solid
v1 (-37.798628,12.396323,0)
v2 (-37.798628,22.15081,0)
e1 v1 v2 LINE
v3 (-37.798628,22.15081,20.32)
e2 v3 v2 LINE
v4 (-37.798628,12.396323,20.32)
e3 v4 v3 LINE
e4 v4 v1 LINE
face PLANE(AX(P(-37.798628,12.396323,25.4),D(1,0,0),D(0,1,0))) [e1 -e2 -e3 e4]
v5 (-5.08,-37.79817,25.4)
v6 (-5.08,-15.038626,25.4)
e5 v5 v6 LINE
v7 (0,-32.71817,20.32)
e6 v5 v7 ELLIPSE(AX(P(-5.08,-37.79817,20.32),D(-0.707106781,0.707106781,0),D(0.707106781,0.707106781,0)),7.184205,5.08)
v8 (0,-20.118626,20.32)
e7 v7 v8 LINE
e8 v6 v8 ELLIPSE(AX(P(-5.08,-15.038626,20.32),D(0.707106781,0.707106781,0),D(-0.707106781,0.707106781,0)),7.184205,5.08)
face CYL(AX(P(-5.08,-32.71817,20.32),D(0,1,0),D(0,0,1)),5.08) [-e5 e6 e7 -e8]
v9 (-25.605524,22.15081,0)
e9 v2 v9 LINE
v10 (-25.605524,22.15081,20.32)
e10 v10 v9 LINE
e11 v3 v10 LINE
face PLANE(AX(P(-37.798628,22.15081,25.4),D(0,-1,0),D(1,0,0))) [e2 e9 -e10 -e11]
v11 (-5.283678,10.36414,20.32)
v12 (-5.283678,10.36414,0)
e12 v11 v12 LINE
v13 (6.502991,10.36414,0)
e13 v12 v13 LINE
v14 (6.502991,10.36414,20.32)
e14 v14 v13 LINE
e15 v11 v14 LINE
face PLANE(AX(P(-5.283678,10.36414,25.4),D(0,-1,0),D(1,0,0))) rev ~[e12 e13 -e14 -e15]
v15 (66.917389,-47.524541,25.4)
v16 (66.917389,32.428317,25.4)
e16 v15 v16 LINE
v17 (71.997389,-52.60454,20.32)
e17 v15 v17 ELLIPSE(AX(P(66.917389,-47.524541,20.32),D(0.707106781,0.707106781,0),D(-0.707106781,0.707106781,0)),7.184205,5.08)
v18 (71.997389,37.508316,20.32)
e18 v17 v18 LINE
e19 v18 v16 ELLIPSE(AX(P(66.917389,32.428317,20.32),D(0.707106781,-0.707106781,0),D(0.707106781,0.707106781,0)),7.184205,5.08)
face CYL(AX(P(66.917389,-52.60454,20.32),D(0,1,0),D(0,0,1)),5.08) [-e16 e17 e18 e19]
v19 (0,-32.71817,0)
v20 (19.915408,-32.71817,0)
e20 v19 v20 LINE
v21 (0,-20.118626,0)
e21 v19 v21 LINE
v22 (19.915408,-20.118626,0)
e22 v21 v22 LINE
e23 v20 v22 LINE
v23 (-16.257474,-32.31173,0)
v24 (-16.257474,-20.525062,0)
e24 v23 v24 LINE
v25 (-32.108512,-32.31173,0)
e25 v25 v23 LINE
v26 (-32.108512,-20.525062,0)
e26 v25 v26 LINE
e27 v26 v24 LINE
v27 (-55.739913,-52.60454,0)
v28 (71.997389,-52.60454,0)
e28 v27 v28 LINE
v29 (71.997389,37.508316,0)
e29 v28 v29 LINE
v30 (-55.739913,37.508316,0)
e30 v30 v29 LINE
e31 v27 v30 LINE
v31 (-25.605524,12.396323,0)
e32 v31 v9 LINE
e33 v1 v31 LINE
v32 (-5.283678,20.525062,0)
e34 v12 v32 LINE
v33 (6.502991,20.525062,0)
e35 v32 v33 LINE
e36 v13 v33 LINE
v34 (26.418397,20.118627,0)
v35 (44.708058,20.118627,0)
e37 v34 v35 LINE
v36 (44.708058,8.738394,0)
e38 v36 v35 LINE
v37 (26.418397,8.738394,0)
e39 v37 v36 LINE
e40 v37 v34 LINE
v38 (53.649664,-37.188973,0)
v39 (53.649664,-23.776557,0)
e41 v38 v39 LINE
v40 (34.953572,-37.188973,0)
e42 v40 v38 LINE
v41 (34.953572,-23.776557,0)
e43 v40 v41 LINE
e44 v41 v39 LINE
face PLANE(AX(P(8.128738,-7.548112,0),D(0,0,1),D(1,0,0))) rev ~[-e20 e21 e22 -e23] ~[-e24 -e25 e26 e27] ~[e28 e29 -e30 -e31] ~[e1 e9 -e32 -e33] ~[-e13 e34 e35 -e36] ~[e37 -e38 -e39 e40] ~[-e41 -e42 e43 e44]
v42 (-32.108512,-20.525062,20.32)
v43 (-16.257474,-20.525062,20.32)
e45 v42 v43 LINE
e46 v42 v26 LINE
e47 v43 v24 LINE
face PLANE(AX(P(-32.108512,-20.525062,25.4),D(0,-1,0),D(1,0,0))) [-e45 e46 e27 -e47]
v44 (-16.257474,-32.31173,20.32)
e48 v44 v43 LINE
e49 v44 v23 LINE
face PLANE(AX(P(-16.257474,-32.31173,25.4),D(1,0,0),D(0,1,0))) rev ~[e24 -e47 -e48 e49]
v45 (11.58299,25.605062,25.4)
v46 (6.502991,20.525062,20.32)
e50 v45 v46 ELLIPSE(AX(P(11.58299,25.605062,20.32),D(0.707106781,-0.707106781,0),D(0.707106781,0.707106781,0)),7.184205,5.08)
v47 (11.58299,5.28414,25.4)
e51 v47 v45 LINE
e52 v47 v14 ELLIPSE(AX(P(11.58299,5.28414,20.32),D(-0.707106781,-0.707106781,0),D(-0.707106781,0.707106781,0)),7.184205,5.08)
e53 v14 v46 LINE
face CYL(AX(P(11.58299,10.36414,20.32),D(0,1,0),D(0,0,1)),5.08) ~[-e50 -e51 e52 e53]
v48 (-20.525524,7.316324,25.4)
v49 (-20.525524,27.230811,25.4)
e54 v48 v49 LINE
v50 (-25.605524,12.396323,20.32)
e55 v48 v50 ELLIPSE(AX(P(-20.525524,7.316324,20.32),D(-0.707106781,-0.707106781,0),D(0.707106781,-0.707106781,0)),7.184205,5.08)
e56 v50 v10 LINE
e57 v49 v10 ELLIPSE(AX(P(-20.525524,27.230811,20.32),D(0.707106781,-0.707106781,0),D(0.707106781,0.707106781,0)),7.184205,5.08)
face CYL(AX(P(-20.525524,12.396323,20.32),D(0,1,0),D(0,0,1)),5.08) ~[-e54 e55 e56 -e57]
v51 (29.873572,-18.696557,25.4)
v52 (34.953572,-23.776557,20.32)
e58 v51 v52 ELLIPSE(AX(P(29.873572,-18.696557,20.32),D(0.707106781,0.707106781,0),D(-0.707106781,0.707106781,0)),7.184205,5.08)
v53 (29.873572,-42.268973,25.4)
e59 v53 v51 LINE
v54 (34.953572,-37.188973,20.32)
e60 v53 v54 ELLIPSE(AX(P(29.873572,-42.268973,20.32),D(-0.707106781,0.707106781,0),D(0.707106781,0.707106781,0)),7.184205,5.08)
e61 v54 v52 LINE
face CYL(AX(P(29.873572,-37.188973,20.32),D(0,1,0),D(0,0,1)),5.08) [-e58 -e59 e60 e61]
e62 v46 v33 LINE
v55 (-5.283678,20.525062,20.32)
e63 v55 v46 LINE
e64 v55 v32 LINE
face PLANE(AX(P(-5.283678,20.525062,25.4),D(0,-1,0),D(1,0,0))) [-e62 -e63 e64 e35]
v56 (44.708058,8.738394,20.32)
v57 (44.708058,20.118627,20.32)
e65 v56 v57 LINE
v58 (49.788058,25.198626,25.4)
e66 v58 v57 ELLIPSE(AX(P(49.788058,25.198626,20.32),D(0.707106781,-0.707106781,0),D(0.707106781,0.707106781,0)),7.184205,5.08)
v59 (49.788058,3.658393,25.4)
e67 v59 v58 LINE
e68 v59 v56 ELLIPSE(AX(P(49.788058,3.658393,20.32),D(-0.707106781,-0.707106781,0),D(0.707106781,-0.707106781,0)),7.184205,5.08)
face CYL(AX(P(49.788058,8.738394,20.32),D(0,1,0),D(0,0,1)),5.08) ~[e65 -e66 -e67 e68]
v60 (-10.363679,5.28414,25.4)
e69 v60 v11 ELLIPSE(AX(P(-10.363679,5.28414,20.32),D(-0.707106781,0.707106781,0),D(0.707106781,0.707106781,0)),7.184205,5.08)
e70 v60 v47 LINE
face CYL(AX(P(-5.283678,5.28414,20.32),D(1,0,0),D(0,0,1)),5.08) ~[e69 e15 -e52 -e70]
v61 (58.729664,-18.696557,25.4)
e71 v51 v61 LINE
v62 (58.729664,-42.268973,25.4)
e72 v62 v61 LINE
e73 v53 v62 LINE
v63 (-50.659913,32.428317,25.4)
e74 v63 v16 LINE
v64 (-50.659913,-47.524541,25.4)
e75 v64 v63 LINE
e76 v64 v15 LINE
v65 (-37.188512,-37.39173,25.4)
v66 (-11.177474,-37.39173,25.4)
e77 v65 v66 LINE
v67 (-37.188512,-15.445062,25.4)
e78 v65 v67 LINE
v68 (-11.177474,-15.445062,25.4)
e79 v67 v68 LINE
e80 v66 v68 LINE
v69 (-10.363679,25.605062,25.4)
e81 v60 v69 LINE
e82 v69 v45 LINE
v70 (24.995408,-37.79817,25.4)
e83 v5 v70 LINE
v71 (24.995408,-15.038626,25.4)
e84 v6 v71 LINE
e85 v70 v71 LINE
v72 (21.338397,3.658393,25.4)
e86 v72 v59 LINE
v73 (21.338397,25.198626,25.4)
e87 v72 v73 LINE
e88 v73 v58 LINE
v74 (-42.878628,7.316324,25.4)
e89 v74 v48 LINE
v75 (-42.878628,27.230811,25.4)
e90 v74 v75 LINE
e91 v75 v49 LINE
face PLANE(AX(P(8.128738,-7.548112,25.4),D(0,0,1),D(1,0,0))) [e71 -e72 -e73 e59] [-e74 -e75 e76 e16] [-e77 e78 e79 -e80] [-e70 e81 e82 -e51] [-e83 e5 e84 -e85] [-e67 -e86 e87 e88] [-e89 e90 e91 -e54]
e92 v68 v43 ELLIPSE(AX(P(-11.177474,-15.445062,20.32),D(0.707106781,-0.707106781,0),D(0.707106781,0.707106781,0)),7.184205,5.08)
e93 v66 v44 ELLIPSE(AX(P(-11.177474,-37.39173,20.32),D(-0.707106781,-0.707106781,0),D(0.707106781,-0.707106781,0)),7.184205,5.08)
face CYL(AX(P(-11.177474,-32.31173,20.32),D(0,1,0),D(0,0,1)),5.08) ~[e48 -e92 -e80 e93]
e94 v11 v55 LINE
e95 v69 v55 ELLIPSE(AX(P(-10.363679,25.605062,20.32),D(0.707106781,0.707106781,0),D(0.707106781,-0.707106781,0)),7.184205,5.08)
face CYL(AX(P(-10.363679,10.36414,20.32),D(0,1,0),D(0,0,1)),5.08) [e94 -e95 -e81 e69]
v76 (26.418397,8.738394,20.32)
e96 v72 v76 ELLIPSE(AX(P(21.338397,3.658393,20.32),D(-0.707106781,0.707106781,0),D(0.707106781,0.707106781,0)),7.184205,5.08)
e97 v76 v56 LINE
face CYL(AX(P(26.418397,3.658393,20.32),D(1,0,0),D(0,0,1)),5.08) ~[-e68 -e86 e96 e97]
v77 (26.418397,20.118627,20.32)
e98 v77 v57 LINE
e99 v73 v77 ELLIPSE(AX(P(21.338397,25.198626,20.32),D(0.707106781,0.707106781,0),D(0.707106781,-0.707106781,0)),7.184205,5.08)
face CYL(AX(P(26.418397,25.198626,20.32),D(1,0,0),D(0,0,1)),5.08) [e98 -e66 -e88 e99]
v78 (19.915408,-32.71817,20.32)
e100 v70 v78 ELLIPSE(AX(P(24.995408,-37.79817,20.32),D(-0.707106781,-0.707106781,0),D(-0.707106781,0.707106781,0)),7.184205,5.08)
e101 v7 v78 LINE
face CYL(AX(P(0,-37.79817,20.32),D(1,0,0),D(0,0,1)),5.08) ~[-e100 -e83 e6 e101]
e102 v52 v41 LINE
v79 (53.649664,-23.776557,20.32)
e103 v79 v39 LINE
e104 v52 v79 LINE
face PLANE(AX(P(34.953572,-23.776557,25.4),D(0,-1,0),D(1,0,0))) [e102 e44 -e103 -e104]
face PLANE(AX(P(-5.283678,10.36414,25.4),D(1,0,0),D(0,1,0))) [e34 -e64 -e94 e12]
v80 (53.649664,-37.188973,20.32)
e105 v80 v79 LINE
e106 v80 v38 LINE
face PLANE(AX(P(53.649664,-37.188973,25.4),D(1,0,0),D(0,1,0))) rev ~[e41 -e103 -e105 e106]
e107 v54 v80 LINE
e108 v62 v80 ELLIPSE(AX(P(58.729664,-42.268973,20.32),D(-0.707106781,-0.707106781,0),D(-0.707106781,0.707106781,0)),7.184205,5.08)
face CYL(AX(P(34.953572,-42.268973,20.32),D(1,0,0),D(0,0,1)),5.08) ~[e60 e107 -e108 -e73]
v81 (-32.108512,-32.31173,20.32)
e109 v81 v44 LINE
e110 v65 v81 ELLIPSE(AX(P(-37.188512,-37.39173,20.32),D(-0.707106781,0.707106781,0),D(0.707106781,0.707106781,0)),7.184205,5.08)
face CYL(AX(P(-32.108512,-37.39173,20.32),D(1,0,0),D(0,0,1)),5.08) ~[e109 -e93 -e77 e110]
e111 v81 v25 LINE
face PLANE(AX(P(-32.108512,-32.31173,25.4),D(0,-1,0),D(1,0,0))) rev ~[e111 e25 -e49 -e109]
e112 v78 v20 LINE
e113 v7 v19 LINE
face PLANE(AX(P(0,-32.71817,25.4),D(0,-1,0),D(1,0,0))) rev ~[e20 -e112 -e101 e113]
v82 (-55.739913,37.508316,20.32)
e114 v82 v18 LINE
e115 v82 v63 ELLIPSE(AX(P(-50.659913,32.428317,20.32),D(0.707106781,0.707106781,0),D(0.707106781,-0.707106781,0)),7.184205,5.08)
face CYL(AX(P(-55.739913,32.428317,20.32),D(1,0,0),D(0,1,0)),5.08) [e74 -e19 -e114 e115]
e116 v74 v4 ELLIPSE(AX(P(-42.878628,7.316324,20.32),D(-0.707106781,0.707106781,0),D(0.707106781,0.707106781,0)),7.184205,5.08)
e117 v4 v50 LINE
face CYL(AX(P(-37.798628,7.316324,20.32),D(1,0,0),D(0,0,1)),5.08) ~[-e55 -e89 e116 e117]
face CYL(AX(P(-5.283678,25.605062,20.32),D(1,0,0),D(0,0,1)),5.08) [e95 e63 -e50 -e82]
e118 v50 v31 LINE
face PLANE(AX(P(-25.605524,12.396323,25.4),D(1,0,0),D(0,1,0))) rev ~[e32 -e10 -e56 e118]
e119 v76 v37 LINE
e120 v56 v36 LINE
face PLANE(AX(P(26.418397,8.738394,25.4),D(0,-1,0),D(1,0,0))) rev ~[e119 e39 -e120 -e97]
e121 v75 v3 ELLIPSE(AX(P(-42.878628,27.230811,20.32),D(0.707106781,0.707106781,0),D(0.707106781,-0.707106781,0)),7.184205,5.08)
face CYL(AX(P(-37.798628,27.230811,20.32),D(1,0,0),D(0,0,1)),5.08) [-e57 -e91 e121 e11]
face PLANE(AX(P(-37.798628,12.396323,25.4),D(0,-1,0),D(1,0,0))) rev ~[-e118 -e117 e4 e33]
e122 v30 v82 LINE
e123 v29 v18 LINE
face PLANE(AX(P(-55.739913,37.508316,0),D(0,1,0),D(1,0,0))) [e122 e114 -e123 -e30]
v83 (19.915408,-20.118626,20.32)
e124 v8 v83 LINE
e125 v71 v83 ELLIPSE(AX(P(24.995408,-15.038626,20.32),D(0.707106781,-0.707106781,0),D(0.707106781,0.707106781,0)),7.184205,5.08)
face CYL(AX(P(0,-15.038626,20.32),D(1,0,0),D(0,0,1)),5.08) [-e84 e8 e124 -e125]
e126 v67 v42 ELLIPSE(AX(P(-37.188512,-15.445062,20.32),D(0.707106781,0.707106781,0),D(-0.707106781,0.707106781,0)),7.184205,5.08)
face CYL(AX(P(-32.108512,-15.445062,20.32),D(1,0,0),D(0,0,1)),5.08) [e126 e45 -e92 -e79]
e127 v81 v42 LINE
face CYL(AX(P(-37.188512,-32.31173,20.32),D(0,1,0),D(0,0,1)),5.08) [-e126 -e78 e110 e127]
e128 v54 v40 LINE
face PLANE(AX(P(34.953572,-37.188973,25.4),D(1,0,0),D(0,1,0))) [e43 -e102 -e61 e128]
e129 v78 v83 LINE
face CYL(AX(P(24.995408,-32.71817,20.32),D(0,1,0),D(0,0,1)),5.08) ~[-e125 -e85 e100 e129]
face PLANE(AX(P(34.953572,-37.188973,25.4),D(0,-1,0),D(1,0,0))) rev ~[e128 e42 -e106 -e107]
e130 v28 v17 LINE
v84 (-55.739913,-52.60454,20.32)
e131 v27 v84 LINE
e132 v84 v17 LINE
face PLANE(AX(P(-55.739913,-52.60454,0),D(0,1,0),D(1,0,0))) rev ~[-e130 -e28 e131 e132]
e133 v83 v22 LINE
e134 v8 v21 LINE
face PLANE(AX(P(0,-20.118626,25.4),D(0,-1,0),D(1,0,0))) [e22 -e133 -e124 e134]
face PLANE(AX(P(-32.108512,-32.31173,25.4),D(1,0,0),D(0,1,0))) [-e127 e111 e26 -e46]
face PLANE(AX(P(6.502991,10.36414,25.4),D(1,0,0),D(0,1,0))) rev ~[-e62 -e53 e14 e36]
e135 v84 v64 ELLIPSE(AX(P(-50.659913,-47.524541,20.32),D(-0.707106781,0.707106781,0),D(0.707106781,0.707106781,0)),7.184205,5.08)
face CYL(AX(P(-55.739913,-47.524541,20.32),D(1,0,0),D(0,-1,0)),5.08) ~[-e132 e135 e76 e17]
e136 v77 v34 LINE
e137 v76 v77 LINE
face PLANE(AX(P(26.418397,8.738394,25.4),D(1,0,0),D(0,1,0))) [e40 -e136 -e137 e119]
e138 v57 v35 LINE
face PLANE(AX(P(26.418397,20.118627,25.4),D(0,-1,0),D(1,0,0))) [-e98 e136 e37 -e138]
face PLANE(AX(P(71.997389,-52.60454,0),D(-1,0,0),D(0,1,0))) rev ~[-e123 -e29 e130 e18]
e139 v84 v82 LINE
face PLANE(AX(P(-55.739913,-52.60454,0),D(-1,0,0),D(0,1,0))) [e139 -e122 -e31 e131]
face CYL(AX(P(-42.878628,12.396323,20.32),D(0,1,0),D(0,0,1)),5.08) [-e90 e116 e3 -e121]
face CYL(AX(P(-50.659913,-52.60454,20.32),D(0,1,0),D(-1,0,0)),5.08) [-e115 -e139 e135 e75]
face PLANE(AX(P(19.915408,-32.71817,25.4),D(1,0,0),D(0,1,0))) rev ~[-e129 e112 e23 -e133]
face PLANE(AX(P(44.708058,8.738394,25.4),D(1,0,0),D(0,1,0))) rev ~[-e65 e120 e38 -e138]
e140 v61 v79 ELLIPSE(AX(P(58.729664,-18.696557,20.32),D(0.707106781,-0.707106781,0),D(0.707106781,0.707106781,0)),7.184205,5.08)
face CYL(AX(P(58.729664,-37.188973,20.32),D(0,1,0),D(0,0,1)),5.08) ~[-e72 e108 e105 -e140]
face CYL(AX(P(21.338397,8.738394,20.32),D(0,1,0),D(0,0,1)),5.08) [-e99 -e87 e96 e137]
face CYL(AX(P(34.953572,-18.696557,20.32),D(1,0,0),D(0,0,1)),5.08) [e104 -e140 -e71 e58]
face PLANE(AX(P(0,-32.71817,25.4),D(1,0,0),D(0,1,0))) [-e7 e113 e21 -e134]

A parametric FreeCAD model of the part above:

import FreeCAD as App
import Part
import Sketcher

V = App.Vector
Q = App.Units.Quantity


def edges_at(feature, points):
    """Names of the edges that pass closest to the given points."""
    edges = feature.Shape.Edges
    near = lambda p: min(range(len(edges)), key=lambda i: edges[i].distToShape(Part.Vertex(*p))[0])
    return sorted({f"Edge{near(p) + 1}" for p in points})


def add_polygon(sketch, points):
    """Adds a closed chain of lines whose ends are joined by coincident constraints."""
    first, n = sketch.GeometryCount, len(points)
    for a, b in zip(points, points[1:] + points[:1]):
        sketch.addGeometry(Part.LineSegment(App.Vector(*a, 0), App.Vector(*b, 0)), False)
    for i in range(n):
        sketch.addConstraint(Sketcher.Constraint("Coincident", first + i, 2, first + (i + 1) % n, 1))

doc = App.newDocument("Part")
body = doc.addObject("PartDesign::Body", "Body")

# Sketch on XY plane
sketch1 = body.newObject("Sketcher::SketchObject", "Sketch")
sketch1.AttachmentSupport = (doc.getObject("XY_Plane"), [""])
sketch1.MapMode = "FlatFace"
add_polygon(sketch1, [(-55.739913, 37.508316), (-55.739913, -52.60454), (71.997389, -52.60454), (71.997389, 37.508316)])  # lines 0-3
sketch1.addConstraint(Sketcher.Constraint("Vertical", 0))
sketch1.addConstraint(Sketcher.Constraint("Horizontal", 1))
sketch1.addConstraint(Sketcher.Constraint("Vertical", 2))
sketch1.addConstraint(Sketcher.Constraint("Horizontal", 3))
sketch1.addConstraint(Sketcher.Constraint("DistanceX", 1, 1, 1, 2, Q("127.737302 mm")))
sketch1.addConstraint(Sketcher.Constraint("DistanceY", 0, 2, 0, 1, Q("90.112857 mm")))
sketch1.addConstraint(Sketcher.Constraint("DistanceY", 0, 2, -1, 1, Q("52.60454 mm")))
sketch1.addConstraint(Sketcher.Constraint("DistanceX", -1, 1, 1, 2, Q("71.997389 mm")))
pad1 = body.newObject("PartDesign::Pad", "Pad")
pad1.Profile = sketch1
pad1.Length = Q("1 in")

# Sketch on XY plane
sketch2 = body.newObject("Sketcher::SketchObject", "Sketch001")
sketch2.AttachmentSupport = (doc.getObject("XY_Plane"), [""])
sketch2.MapMode = "FlatFace"
sketch2.AttachmentOffset = App.Placement(V(0, 0, 1 * 25.4), App.Rotation())
add_polygon(sketch2, [(-5.283678, 20.525062), (-5.283678, 10.36414), (6.502991, 10.36414), (6.502991, 20.525062)])  # lines 0-3
add_polygon(sketch2, [(26.418397, 20.118627), (26.418397, 8.738394), (44.708058, 8.738394), (44.708058, 20.118627)])  # lines 4-7
add_polygon(sketch2, [(-32.108512, -20.525062), (-32.108512, -32.31173), (-16.257474, -32.31173), (-16.257474, -20.525062)])  # lines 8-11
add_polygon(sketch2, [(0, -20.118626), (0, -32.71817), (19.915408, -32.71817), (19.915408, -20.118626)])  # lines 12-15
add_polygon(sketch2, [(34.953572, -23.776557), (34.953572, -37.188973), (53.649664, -37.188973), (53.649664, -23.776557)])  # lines 16-19
add_polygon(sketch2, [(-37.798628, 22.15081), (-37.798628, 12.396323), (-25.605524, 12.396323), (-25.605524, 22.15081)])  # lines 20-23
sketch2.addConstraint(Sketcher.Constraint("Vertical", 0))
sketch2.addConstraint(Sketcher.Constraint("Horizontal", 1))
sketch2.addConstraint(Sketcher.Constraint("Vertical", 2))
sketch2.addConstraint(Sketcher.Constraint("Horizontal", 3))
sketch2.addConstraint(Sketcher.Constraint("Vertical", 4))
sketch2.addConstraint(Sketcher.Constraint("Horizontal", 5))
sketch2.addConstraint(Sketcher.Constraint("Vertical", 6))
sketch2.addConstraint(Sketcher.Constraint("Horizontal", 7))
sketch2.addConstraint(Sketcher.Constraint("Vertical", 8))
sketch2.addConstraint(Sketcher.Constraint("Horizontal", 9))
sketch2.addConstraint(Sketcher.Constraint("Vertical", 10))
sketch2.addConstraint(Sketcher.Constraint("Horizontal", 11))
sketch2.addConstraint(Sketcher.Constraint("Vertical", 12))
sketch2.addConstraint(Sketcher.Constraint("Horizontal", 13))
sketch2.addConstraint(Sketcher.Constraint("Vertical", 14))
sketch2.addConstraint(Sketcher.Constraint("Horizontal", 15))
sketch2.addConstraint(Sketcher.Constraint("Vertical", 16))
sketch2.addConstraint(Sketcher.Constraint("Horizontal", 17))
sketch2.addConstraint(Sketcher.Constraint("Vertical", 18))
sketch2.addConstraint(Sketcher.Constraint("Horizontal", 19))
sketch2.addConstraint(Sketcher.Constraint("Vertical", 20))
sketch2.addConstraint(Sketcher.Constraint("Horizontal", 21))
sketch2.addConstraint(Sketcher.Constraint("Vertical", 22))
sketch2.addConstraint(Sketcher.Constraint("Horizontal", 23))
sketch2.addConstraint(Sketcher.Constraint("PointOnObject", 12, 2, -2))
sketch2.addConstraint(Sketcher.Constraint("Equal", 3, 8))
sketch2.addConstraint(Sketcher.Constraint("DistanceX", 1, 1, 1, 2, Q("11.786669 mm")))
sketch2.addConstraint(Sketcher.Constraint("DistanceX", 5, 1, 5, 2, Q("18.289661 mm")))
sketch2.addConstraint(Sketcher.Constraint("DistanceX", 17, 1, 17, 2, Q("18.696092 mm")))
sketch2.addConstraint(Sketcher.Constraint("DistanceY", 0, 2, 0, 1, Q("10.160922 mm")))
sketch2.addConstraint(Sketcher.Constraint("DistanceY", 10, 2, 0, 2, Q("30.889202 mm")))
sketch2.addConstraint(Sketcher.Constraint("DistanceX", 9, 1, 9, 2, Q("15.851038 mm")))
sketch2.addConstraint(Sketcher.Constraint("DistanceX", 13, 1, 13, 2, Q("19.915408 mm")))
sketch2.addConstraint(Sketcher.Constraint("DistanceX", 21, 1, 21, 2, Q("12.193104 mm")))
sketch2.addConstraint(Sketcher.Constraint("DistanceY", 4, 2, 4, 1, Q("11.380233 mm")))
sketch2.addConstraint(Sketcher.Constraint("DistanceY", 12, 2, 12, 1, Q("12.599544 mm")))
sketch2.addConstraint(Sketcher.Constraint("DistanceY", 16, 2, 16, 1, Q("13.412416 mm")))
sketch2.addConstraint(Sketcher.Constraint("DistanceY", 20, 2, 20, 1, Q("9.754487 mm")))
sketch2.addConstraint(Sketcher.Constraint("DistanceX", 0, 2, -1, 1, Q("5.283678 mm")))
sketch2.addConstraint(Sketcher.Constraint("DistanceY", -1, 1, 0, 2, Q("10.36414 mm")))
sketch2.addConstraint(Sketcher.Constraint("DistanceX", 8, 2, -1, 1, Q("32.108512 mm")))
sketch2.addConstraint(Sketcher.Constraint("DistanceY", 12, 2, -1, 1, Q("32.71817 mm")))
sketch2.addConstraint(Sketcher.Constraint("DistanceY", -1, 1, 22, 2, Q("22.15081 mm")))
sketch2.addConstraint(Sketcher.Constraint("DistanceY", 4, 2, 2, 2, Q("11.786668 mm")))
sketch2.addConstraint(Sketcher.Constraint("DistanceX", 8, 2, 4, 2, Q("58.526908 mm")))
sketch2.addConstraint(Sketcher.Constraint("DistanceY", 18, 2, 5, 2, Q("32.51495 mm")))
sketch2.addConstraint(Sketcher.Constraint("DistanceX", 20, 2, 0, 2, Q("32.51495 mm")))
sketch2.addConstraint(Sketcher.Constraint("DistanceX", -1, 1, 16, 2, Q("34.953572 mm")))
pocket1 = body.newObject("PartDesign::Pocket", "Pocket")
pocket1.Profile = sketch2
pocket1.Length = Q("1 in")
doc.recompute()

fillet = body.newObject("PartDesign::Fillet", "Fillet")
fillet.Base = (pocket1, edges_at(pocket1, [
    (-31.702, 22.151, 25.4),
    (-37.799, 17.274, 25.4),
    (-31.702, 12.396, 25.4),
    (-25.606, 17.274, 25.4),
    (0.61, 20.525, 25.4),
    (6.503, 15.445, 25.4),
    (0.61, 10.364, 25.4),
    (-5.284, 15.445, 25.4),
    (35.563, 20.119, 25.4),
    (35.563, 8.738, 25.4),
    (26.418, 14.429, 25.4),
    (44.708, 14.429, 25.4),
    (19.915, -26.418, 25.4),
    (9.958, -32.718, 25.4),
    (0, -26.418, 25.4),
    (9.958, -20.119, 25.4),
    (34.954, -30.483, 25.4),
    (44.302, -23.777, 25.4),
    (53.65, -30.483, 25.4),
    (44.302, -37.189, 25.4),
    (-32.109, -26.418, 25.4),
    (-24.183, -20.525, 25.4),
    (-24.183, -32.312, 25.4),
    (-16.257, -26.418, 25.4),
    (8.129, 37.508, 25.4),
    (71.997, -7.548, 25.4),
    (8.129, -52.605, 25.4),
    (-55.74, -7.548, 25.4),
]))
fillet.Radius = Q("0.2 in")

doc.recompute()
